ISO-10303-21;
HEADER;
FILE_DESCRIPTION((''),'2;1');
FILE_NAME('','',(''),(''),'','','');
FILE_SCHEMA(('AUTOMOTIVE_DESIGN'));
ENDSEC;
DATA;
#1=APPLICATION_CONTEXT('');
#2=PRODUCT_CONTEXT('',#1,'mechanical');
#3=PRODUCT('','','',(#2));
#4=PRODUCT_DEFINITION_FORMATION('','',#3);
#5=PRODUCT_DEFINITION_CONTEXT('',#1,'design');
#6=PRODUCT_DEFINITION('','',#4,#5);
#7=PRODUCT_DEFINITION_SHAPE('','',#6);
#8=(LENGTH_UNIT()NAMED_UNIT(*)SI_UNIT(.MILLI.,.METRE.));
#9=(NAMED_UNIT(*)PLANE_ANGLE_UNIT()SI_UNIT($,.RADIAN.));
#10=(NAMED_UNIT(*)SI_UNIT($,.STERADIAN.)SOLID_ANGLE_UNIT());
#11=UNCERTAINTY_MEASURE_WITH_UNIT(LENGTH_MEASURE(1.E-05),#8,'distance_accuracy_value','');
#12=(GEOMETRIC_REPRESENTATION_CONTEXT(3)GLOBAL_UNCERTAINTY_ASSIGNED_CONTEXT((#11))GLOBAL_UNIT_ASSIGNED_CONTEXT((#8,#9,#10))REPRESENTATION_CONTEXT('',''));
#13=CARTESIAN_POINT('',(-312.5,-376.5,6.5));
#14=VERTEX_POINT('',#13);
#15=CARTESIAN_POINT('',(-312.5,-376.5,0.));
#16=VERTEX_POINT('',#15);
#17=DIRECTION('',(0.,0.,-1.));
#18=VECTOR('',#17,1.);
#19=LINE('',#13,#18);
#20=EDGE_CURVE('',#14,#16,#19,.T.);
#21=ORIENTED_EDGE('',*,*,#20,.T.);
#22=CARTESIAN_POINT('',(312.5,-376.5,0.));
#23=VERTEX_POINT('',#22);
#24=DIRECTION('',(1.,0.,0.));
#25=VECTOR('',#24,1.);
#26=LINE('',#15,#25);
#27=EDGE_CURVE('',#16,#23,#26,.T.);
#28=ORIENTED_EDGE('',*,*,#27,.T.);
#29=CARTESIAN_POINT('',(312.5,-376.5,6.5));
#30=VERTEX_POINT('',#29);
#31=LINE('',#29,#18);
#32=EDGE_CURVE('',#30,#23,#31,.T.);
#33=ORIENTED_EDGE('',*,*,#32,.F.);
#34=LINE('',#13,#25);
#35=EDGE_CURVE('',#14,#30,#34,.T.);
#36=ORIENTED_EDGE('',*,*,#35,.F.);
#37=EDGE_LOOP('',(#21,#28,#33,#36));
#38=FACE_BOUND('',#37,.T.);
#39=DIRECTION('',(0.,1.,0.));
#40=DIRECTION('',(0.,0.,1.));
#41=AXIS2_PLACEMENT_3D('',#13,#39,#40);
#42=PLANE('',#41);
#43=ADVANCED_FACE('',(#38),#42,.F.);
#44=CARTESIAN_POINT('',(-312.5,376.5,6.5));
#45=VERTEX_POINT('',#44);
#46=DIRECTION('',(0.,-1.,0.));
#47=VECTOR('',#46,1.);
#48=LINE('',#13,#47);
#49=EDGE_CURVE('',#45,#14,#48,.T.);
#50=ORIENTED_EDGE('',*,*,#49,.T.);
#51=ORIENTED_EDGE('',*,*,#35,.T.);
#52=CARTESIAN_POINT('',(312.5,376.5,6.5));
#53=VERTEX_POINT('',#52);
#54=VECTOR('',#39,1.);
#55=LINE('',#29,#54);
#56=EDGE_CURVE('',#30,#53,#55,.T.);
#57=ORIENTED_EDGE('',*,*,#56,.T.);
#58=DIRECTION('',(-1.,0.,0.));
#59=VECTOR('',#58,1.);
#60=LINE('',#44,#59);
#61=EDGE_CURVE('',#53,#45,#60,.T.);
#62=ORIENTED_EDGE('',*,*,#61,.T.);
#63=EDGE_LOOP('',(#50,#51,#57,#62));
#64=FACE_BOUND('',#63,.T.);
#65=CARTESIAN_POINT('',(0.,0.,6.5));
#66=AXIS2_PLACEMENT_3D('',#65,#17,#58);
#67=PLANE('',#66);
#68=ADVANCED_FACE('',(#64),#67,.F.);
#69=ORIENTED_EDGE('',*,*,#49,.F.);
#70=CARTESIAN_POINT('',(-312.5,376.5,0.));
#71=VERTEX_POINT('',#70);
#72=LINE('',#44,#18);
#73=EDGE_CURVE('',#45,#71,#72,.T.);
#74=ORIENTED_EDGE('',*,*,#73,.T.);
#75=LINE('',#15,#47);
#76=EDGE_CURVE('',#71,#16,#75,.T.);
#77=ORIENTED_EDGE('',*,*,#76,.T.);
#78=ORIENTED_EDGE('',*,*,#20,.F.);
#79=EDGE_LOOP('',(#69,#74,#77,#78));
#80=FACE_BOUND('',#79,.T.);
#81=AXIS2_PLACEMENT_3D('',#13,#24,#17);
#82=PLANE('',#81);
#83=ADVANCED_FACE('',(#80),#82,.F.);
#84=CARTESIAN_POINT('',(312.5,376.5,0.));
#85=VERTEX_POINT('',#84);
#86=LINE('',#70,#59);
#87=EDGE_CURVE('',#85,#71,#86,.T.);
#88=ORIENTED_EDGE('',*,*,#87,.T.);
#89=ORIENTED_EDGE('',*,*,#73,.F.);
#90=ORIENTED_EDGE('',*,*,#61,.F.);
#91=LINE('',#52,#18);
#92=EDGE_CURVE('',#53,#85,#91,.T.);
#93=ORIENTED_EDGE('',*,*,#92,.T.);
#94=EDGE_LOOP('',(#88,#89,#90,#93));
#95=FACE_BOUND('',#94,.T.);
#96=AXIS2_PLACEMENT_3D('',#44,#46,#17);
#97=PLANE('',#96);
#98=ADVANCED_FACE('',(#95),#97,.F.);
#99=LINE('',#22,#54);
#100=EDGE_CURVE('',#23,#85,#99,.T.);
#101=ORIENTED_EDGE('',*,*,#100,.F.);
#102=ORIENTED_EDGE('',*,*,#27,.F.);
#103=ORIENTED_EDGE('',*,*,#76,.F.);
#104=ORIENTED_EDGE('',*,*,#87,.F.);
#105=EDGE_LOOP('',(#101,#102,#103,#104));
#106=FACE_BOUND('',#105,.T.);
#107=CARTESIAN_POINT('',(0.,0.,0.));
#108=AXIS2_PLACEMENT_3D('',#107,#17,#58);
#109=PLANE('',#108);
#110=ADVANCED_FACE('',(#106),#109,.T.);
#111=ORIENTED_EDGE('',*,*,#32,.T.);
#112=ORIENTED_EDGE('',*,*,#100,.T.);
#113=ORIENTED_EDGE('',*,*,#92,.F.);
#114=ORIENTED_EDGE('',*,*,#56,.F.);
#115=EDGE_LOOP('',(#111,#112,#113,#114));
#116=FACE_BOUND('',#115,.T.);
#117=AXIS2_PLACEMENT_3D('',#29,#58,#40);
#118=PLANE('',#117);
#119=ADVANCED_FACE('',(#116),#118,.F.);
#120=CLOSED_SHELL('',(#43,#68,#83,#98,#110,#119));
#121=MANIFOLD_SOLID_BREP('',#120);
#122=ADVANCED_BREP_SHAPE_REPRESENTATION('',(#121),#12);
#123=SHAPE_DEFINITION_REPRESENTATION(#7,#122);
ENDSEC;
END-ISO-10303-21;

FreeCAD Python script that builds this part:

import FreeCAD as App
import Part
import Sketcher


def add_polygon(sketch, points):
    """Adds a closed chain of lines whose ends are joined by coincident constraints."""
    first, n = sketch.GeometryCount, len(points)
    for a, b in zip(points, points[1:] + points[:1]):
        sketch.addGeometry(Part.LineSegment(App.Vector(*a, 0), App.Vector(*b, 0)), False)
    for i in range(n):
        sketch.addConstraint(Sketcher.Constraint("Coincident", first + i, 2, first + (i + 1) % n, 1))

doc = App.newDocument("Part")
body = doc.addObject("PartDesign::Body", "Body")

# Sketch on XY plane
sketch1 = doc.addObject("Sketcher::SketchObject", "Sketch")
body.addObject(sketch1)
sketch1.AttachmentSupport = (doc.XY_Plane, [""])
sketch1.MapMode = "FlatFace"
add_polygon(sketch1, [(-312, 376), (-312, -376), (312, -376), (312, 376)])  # lines 0-3
sketch1.addConstraint([
    Sketcher.Constraint("Vertical", 0),
    Sketcher.Constraint("Horizontal", 1),
    Sketcher.Constraint("Vertical", 2),
    Sketcher.Constraint("Horizontal", 3),
    Sketcher.Constraint("Symmetric", 0, 2, 2, 2, -1, 1),
    Sketcher.Constraint("DistanceX", 1, 1, 1, 2, 625.0),
    Sketcher.Constraint("DistanceY", 0, 2, 0, 1, 753.0),
])
pad1 = doc.addObject("PartDesign::Pad", "Pad")
body.addObject(pad1)
pad1.Profile = sketch1
pad1.Length = 6.5

doc.recompute()
